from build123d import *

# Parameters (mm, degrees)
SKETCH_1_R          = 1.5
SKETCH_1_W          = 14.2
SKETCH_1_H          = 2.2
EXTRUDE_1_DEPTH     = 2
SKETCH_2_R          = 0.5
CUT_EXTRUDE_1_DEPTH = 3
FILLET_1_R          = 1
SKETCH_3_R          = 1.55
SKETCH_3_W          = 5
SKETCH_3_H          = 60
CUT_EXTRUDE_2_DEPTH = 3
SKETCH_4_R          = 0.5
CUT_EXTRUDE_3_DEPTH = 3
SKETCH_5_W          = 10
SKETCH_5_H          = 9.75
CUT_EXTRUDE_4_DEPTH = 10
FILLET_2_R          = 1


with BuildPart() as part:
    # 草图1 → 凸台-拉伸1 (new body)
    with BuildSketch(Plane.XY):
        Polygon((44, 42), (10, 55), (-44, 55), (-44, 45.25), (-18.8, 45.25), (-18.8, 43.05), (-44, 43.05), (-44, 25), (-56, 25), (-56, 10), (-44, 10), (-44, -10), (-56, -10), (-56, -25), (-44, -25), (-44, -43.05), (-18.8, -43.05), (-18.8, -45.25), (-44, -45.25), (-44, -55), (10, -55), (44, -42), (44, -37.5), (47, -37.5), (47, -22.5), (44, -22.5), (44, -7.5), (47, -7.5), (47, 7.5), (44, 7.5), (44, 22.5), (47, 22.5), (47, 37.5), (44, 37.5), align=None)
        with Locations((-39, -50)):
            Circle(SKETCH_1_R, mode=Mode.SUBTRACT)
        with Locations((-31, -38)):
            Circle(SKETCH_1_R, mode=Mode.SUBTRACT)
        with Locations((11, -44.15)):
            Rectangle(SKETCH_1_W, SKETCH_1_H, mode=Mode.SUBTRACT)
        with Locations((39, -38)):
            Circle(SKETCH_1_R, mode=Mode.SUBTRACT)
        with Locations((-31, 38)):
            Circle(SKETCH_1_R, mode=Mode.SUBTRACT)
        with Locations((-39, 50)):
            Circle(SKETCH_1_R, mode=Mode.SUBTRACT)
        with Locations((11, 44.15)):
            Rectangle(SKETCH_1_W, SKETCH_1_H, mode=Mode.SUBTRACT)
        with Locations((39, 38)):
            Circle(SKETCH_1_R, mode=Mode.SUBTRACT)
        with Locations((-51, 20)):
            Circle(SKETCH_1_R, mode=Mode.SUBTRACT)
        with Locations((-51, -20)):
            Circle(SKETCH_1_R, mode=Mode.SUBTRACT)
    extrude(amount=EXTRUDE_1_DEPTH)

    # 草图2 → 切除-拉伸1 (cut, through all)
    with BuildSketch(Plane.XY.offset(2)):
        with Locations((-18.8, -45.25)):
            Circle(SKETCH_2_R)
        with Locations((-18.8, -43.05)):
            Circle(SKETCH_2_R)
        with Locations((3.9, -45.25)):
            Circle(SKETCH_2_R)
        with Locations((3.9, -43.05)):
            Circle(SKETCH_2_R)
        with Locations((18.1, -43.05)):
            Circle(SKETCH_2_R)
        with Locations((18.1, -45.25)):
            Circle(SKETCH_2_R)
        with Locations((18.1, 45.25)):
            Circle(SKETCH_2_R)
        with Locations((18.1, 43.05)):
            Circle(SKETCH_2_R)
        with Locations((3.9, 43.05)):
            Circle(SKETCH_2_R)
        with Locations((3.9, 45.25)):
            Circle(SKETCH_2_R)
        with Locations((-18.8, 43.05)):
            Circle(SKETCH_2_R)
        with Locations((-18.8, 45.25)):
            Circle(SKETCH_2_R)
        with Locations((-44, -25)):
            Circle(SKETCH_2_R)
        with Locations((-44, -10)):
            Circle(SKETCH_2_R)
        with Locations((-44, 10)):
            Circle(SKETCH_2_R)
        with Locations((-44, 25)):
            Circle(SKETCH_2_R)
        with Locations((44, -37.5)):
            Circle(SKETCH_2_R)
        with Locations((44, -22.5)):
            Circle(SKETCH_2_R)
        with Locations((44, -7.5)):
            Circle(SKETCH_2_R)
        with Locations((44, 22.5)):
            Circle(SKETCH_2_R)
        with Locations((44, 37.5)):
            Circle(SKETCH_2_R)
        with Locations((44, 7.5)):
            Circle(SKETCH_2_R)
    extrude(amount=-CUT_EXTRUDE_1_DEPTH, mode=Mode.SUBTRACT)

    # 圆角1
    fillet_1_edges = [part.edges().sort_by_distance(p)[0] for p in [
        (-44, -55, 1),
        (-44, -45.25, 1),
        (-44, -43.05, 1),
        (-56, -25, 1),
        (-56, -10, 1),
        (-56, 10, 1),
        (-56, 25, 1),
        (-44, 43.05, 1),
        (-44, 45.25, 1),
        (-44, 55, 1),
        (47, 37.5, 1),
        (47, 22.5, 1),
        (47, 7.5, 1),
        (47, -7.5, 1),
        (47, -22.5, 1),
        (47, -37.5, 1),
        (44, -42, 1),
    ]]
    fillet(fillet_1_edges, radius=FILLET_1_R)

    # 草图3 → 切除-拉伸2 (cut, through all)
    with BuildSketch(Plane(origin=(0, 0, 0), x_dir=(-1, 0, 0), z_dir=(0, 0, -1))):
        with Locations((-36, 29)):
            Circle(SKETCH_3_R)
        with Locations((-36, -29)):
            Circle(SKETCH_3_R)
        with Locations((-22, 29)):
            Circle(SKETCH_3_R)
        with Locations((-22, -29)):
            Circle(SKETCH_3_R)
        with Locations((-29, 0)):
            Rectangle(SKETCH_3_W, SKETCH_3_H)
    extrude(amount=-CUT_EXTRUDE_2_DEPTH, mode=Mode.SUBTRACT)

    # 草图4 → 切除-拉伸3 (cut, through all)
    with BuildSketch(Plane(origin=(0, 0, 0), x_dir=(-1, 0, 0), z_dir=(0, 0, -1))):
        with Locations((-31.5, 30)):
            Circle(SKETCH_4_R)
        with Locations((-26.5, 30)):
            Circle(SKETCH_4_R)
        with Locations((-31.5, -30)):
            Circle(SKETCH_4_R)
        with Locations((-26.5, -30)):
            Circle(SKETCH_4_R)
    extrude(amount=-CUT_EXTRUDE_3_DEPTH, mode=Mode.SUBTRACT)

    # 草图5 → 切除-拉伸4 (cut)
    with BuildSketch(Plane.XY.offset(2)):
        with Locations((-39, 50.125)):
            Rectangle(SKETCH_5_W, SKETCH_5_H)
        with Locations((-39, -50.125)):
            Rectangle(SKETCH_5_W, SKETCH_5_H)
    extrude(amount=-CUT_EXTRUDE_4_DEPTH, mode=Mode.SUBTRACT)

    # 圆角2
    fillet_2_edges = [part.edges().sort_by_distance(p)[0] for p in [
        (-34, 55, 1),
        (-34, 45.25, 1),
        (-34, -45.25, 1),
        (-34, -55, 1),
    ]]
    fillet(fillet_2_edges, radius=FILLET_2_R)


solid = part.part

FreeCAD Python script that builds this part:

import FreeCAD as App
import Part
import Sketcher
from FreeCAD import Vector
Q = App.Units.Quantity


def edges_at(feature, points):
    """Names of the edges that pass closest to the given points."""
    edges = feature.Shape.Edges
    near = lambda p: min(range(len(edges)), key=lambda i: edges[i].distToShape(Part.Vertex(*p))[0])
    return sorted({f"Edge{near(p) + 1}" for p in points})

doc = App.newDocument("Part")
body = doc.addObject("PartDesign::Body", "Body")

sketch1 = body.newObject("Sketcher::SketchObject", "Sketch")
sketch1.AttachmentSupport = (doc.getObject("XY_Plane"), [""])
sketch1.MapMode = "FlatFace"
sketch1.addGeometry(Part.LineSegment(Vector(44, 42, 0), Vector(10, 55, 0)), False)
sketch1.addGeometry(Part.LineSegment(Vector(10, 55, 0), Vector(-44, 55, 0)), False)
sketch1.addGeometry(Part.LineSegment(Vector(-44, 55, 0), Vector(-44, 45.2, 0)), False)
sketch1.addGeometry(Part.LineSegment(Vector(-44, 45.2, 0), Vector(-18.8, 45.2, 0)), False)
sketch1.addGeometry(Part.LineSegment(Vector(-18.8, 45.2, 0), Vector(-18.8, 43, 0)), False)
sketch1.addGeometry(Part.LineSegment(Vector(-18.8, 43, 0), Vector(-44, 43, 0)), False)
sketch1.addGeometry(Part.LineSegment(Vector(-44, 43, 0), Vector(-44, 25, 0)), False)
sketch1.addGeometry(Part.LineSegment(Vector(-44, 25, 0), Vector(-56, 25, 0)), False)
sketch1.addGeometry(Part.LineSegment(Vector(-56, 25, 0), Vector(-56, 10, 0)), False)
sketch1.addGeometry(Part.LineSegment(Vector(-56, 10, 0), Vector(-44, 10, 0)), False)
sketch1.addGeometry(Part.LineSegment(Vector(-44, 10, 0), Vector(-44, -10, 0)), False)
sketch1.addGeometry(Part.LineSegment(Vector(-44, -10, 0), Vector(-56, -10, 0)), False)
sketch1.addGeometry(Part.LineSegment(Vector(-56, -10, 0), Vector(-56, -25, 0)), False)
sketch1.addGeometry(Part.LineSegment(Vector(-56, -25, 0), Vector(-44, -25, 0)), False)
sketch1.addGeometry(Part.LineSegment(Vector(-44, -25, 0), Vector(-44, -43, 0)), False)
sketch1.addGeometry(Part.LineSegment(Vector(-44, -43, 0), Vector(-18.8, -43, 0)), False)
sketch1.addGeometry(Part.LineSegment(Vector(-18.8, -43, 0), Vector(-18.8, -45.2, 0)), False)
sketch1.addGeometry(Part.LineSegment(Vector(-18.8, -45.2, 0), Vector(-44, -45.2, 0)), False)
sketch1.addGeometry(Part.LineSegment(Vector(-44, -45.2, 0), Vector(-44, -55, 0)), False)
sketch1.addGeometry(Part.LineSegment(Vector(-44, -55, 0), Vector(10, -55, 0)), False)
sketch1.addGeometry(Part.LineSegment(Vector(10, -55, 0), Vector(44, -42, 0)), False)
sketch1.addGeometry(Part.LineSegment(Vector(44, -42, 0), Vector(44, -37.5, 0)), False)
sketch1.addGeometry(Part.LineSegment(Vector(44, -37.5, 0), Vector(47, -37.5, 0)), False)
sketch1.addGeometry(Part.LineSegment(Vector(47, -37.5, 0), Vector(47, -22.5, 0)), False)
sketch1.addGeometry(Part.LineSegment(Vector(47, -22.5, 0), Vector(44, -22.5, 0)), False)
sketch1.addGeometry(Part.LineSegment(Vector(44, -22.5, 0), Vector(44, -7.5, 0)), False)
sketch1.addGeometry(Part.LineSegment(Vector(44, -7.5, 0), Vector(47, -7.5, 0)), False)
sketch1.addGeometry(Part.LineSegment(Vector(47, -7.5, 0), Vector(47, 7.5, 0)), False)
sketch1.addGeometry(Part.LineSegment(Vector(47, 7.5, 0), Vector(44, 7.5, 0)), False)
sketch1.addGeometry(Part.LineSegment(Vector(44, 7.5, 0), Vector(44, 22.5, 0)), False)
sketch1.addGeometry(Part.LineSegment(Vector(44, 22.5, 0), Vector(47, 22.5, 0)), False)
sketch1.addGeometry(Part.LineSegment(Vector(47, 22.5, 0), Vector(47, 37.5, 0)), False)
sketch1.addGeometry(Part.LineSegment(Vector(47, 37.5, 0), Vector(44, 37.5, 0)), False)
sketch1.addGeometry(Part.LineSegment(Vector(44, 37.5, 0), Vector(44, 42, 0)), False)
sketch1.addGeometry(Part.Circle(Vector(-39, -50, 0), Vector(0, 0, 1), 1.5), False)
sketch1.addGeometry(Part.Circle(Vector(-31, -38, 0), Vector(0, 0, 1), 1.5), False)
sketch1.addGeometry(Part.Circle(Vector(-51, -20, 0), Vector(0, 0, 1), 1.5), False)
sketch1.addGeometry(Part.LineSegment(Vector(18.1, -45.2, 0), Vector(3.9, -45.2, 0)), False)
sketch1.addGeometry(Part.LineSegment(Vector(3.9, -45.2, 0), Vector(3.9, -43, 0)), False)
sketch1.addGeometry(Part.LineSegment(Vector(3.9, -43, 0), Vector(18.1, -43, 0)), False)
sketch1.addGeometry(Part.LineSegment(Vector(18.1, -43, 0), Vector(18.1, -45.2, 0)), False)
sketch1.addGeometry(Part.Circle(Vector(39, -38, 0), Vector(0, 0, 1), 1.5), False)
sketch1.addGeometry(Part.Circle(Vector(-51, 20, 0), Vector(0, 0, 1), 1.5), False)
sketch1.addGeometry(Part.Circle(Vector(-31, 38, 0), Vector(0, 0, 1), 1.5), False)
sketch1.addGeometry(Part.Circle(Vector(-39, 50, 0), Vector(0, 0, 1), 1.5), False)
sketch1.addGeometry(Part.LineSegment(Vector(18.1, 43, 0), Vector(3.9, 43, 0)), False)
sketch1.addGeometry(Part.LineSegment(Vector(3.9, 43, 0), Vector(3.9, 45.2, 0)), False)
sketch1.addGeometry(Part.LineSegment(Vector(3.9, 45.2, 0), Vector(18.1, 45.2, 0)), False)
sketch1.addGeometry(Part.LineSegment(Vector(18.1, 45.2, 0), Vector(18.1, 43, 0)), False)
sketch1.addGeometry(Part.Circle(Vector(39, 38, 0), Vector(0, 0, 1), 1.5), False)
sketch1.addConstraint(Sketcher.Constraint("Coincident", 0, 2, 1, 1))
sketch1.addConstraint(Sketcher.Constraint("Coincident", 1, 2, 2, 1))
sketch1.addConstraint(Sketcher.Constraint("Coincident", 2, 2, 3, 1))
sketch1.addConstraint(Sketcher.Constraint("Coincident", 3, 2, 4, 1))
sketch1.addConstraint(Sketcher.Constraint("Coincident", 4, 2, 5, 1))
sketch1.addConstraint(Sketcher.Constraint("Coincident", 5, 2, 6, 1))
sketch1.addConstraint(Sketcher.Constraint("Coincident", 6, 2, 7, 1))
sketch1.addConstraint(Sketcher.Constraint("Coincident", 7, 2, 8, 1))
sketch1.addConstraint(Sketcher.Constraint("Coincident", 8, 2, 9, 1))
sketch1.addConstraint(Sketcher.Constraint("Coincident", 9, 2, 10, 1))
sketch1.addConstraint(Sketcher.Constraint("Coincident", 10, 2, 11, 1))
sketch1.addConstraint(Sketcher.Constraint("Coincident", 11, 2, 12, 1))
sketch1.addConstraint(Sketcher.Constraint("Coincident", 12, 2, 13, 1))
sketch1.addConstraint(Sketcher.Constraint("Coincident", 13, 2, 14, 1))
sketch1.addConstraint(Sketcher.Constraint("Coincident", 14, 2, 15, 1))
sketch1.addConstraint(Sketcher.Constraint("Coincident", 15, 2, 16, 1))
sketch1.addConstraint(Sketcher.Constraint("Coincident", 16, 2, 17, 1))
sketch1.addConstraint(Sketcher.Constraint("Coincident", 17, 2, 18, 1))
sketch1.addConstraint(Sketcher.Constraint("Coincident", 18, 2, 19, 1))
sketch1.addConstraint(Sketcher.Constraint("Coincident", 19, 2, 20, 1))
sketch1.addConstraint(Sketcher.Constraint("Coincident", 20, 2, 21, 1))
sketch1.addConstraint(Sketcher.Constraint("Coincident", 21, 2, 22, 1))
sketch1.addConstraint(Sketcher.Constraint("Coincident", 22, 2, 23, 1))
sketch1.addConstraint(Sketcher.Constraint("Coincident", 23, 2, 24, 1))
sketch1.addConstraint(Sketcher.Constraint("Coincident", 24, 2, 25, 1))
sketch1.addConstraint(Sketcher.Constraint("Coincident", 25, 2, 26, 1))
sketch1.addConstraint(Sketcher.Constraint("Coincident", 26, 2, 27, 1))
sketch1.addConstraint(Sketcher.Constraint("Coincident", 27, 2, 28, 1))
sketch1.addConstraint(Sketcher.Constraint("Coincident", 28, 2, 29, 1))
sketch1.addConstraint(Sketcher.Constraint("Coincident", 29, 2, 30, 1))
sketch1.addConstraint(Sketcher.Constraint("Coincident", 30, 2, 31, 1))
sketch1.addConstraint(Sketcher.Constraint("Coincident", 31, 2, 32, 1))
sketch1.addConstraint(Sketcher.Constraint("Coincident", 32, 2, 33, 1))
sketch1.addConstraint(Sketcher.Constraint("Coincident", 33, 2, 0, 1))
sketch1.addConstraint(Sketcher.Constraint("Coincident", 37, 2, 38, 1))
sketch1.addConstraint(Sketcher.Constraint("Coincident", 38, 2, 39, 1))
sketch1.addConstraint(Sketcher.Constraint("Coincident", 39, 2, 40, 1))
sketch1.addConstraint(Sketcher.Constraint("Coincident", 40, 2, 37, 1))
sketch1.addConstraint(Sketcher.Constraint("Coincident", 45, 2, 46, 1))
sketch1.addConstraint(Sketcher.Constraint("Coincident", 46, 2, 47, 1))
sketch1.addConstraint(Sketcher.Constraint("Coincident", 47, 2, 48, 1))
sketch1.addConstraint(Sketcher.Constraint("Coincident", 48, 2, 45, 1))
sketch1.addConstraint(Sketcher.Constraint("Horizontal", 1))
sketch1.addConstraint(Sketcher.Constraint("Vertical", 2))
sketch1.addConstraint(Sketcher.Constraint("Horizontal", 3))
sketch1.addConstraint(Sketcher.Constraint("Vertical", 4))
sketch1.addConstraint(Sketcher.Constraint("Horizontal", 5))
sketch1.addConstraint(Sketcher.Constraint("Vertical", 6))
sketch1.addConstraint(Sketcher.Constraint("Horizontal", 7))
sketch1.addConstraint(Sketcher.Constraint("Vertical", 8))
sketch1.addConstraint(Sketcher.Constraint("Horizontal", 9))
sketch1.addConstraint(Sketcher.Constraint("Vertical", 10))
sketch1.addConstraint(Sketcher.Constraint("Horizontal", 11))
sketch1.addConstraint(Sketcher.Constraint("Vertical", 12))
sketch1.addConstraint(Sketcher.Constraint("Horizontal", 13))
sketch1.addConstraint(Sketcher.Constraint("Vertical", 14))
sketch1.addConstraint(Sketcher.Constraint("Horizontal", 15))
sketch1.addConstraint(Sketcher.Constraint("Vertical", 16))
sketch1.addConstraint(Sketcher.Constraint("Horizontal", 17))
sketch1.addConstraint(Sketcher.Constraint("Vertical", 18))
sketch1.addConstraint(Sketcher.Constraint("Horizontal", 19))
sketch1.addConstraint(Sketcher.Constraint("Vertical", 21))
sketch1.addConstraint(Sketcher.Constraint("Horizontal", 22))
sketch1.addConstraint(Sketcher.Constraint("Vertical", 23))
sketch1.addConstraint(Sketcher.Constraint("Horizontal", 24))
sketch1.addConstraint(Sketcher.Constraint("Vertical", 25))
sketch1.addConstraint(Sketcher.Constraint("Horizontal", 26))
sketch1.addConstraint(Sketcher.Constraint("Vertical", 27))
sketch1.addConstraint(Sketcher.Constraint("Horizontal", 28))
sketch1.addConstraint(Sketcher.Constraint("Vertical", 29))
sketch1.addConstraint(Sketcher.Constraint("Horizontal", 30))
sketch1.addConstraint(Sketcher.Constraint("Vertical", 31))
sketch1.addConstraint(Sketcher.Constraint("Horizontal", 32))
sketch1.addConstraint(Sketcher.Constraint("Vertical", 33))
sketch1.addConstraint(Sketcher.Constraint("Horizontal", 37))
sketch1.addConstraint(Sketcher.Constraint("Vertical", 38))
sketch1.addConstraint(Sketcher.Constraint("Horizontal", 39))
sketch1.addConstraint(Sketcher.Constraint("Vertical", 40))
sketch1.addConstraint(Sketcher.Constraint("Horizontal", 45))
sketch1.addConstraint(Sketcher.Constraint("Vertical", 46))
sketch1.addConstraint(Sketcher.Constraint("Horizontal", 47))
sketch1.addConstraint(Sketcher.Constraint("Vertical", 48))
sketch1.addConstraint(Sketcher.Constraint("Equal", 34, 35))
sketch1.addConstraint(Sketcher.Constraint("Equal", 35, 36))
sketch1.addConstraint(Sketcher.Constraint("Equal", 36, 41))
sketch1.addConstraint(Sketcher.Constraint("Equal", 41, 42))
sketch1.addConstraint(Sketcher.Constraint("Equal", 42, 43))
sketch1.addConstraint(Sketcher.Constraint("Equal", 43, 44))
sketch1.addConstraint(Sketcher.Constraint("Equal", 44, 49))
sketch1.addConstraint(Sketcher.Constraint("Symmetric", 36, 3, 42, 3, -1))
sketch1.addConstraint(Sketcher.Constraint("Symmetric", 35, 3, 43, 3, -1))
sketch1.addConstraint(Sketcher.Constraint("Symmetric", 34, 3, 44, 3, -1))
sketch1.addConstraint(Sketcher.Constraint("Symmetric", 41, 3, 49, 3, -1))
sketch1.addConstraint(Sketcher.Constraint("Symmetric", 8, 2, 11, 2, -1))
sketch1.addConstraint(Sketcher.Constraint("Symmetric", 6, 2, 13, 2, -1))
sketch1.addConstraint(Sketcher.Constraint("Symmetric", 4, 2, 15, 2, -1))
sketch1.addConstraint(Sketcher.Constraint("Symmetric", 2, 2, 17, 2, -1))
sketch1.addConstraint(Sketcher.Constraint("Symmetric", 0, 2, 19, 2, -1))
sketch1.addConstraint(Sketcher.Constraint("Symmetric", 25, 2, 28, 2, -1))
sketch1.addConstraint(Sketcher.Constraint("Symmetric", 23, 2, 30, 2, -1))
sketch1.addConstraint(Sketcher.Constraint("Symmetric", 21, 2, 32, 2, -1))
sketch1.addConstraint(Sketcher.Constraint("Symmetric", 38, 2, 45, 2, -1))
sketch1.addConstraint(Sketcher.Constraint("Symmetric", 40, 2, 47, 2, -1))
sketch1.addConstraint(Sketcher.Constraint("Horizontal", 35, 3, 41, 3))
sketch1.addConstraint(Sketcher.Constraint("Horizontal", 17, 2, 37, 2))
sketch1.addConstraint(Sketcher.Constraint("Horizontal", 15, 2, 38, 2))
sketch1.addConstraint(Sketcher.Constraint("Vertical", 2, 2, 5, 2))
sketch1.addConstraint(Sketcher.Constraint("Vertical", 6, 2, 9, 2))
sketch1.addConstraint(Sketcher.Constraint("Vertical", 21, 2, 24, 2))
sketch1.addConstraint(Sketcher.Constraint("Vertical", 23, 2, 26, 2))
sketch1.addConstraint(Sketcher.Constraint("Equal", 12, 23))
sketch1.addConstraint(Sketcher.Constraint("Equal", 23, 25))
sketch1.addConstraint(Sketcher.Constraint("Equal", 25, 27))
sketch1.addConstraint(Sketcher.Constraint("Equal", 21, 33))
sketch1.addConstraint(Sketcher.Constraint("Diameter", 34, Q("3 mm")))
sketch1.addConstraint(Sketcher.Constraint("DistanceX", 1, 2, 1, 1, Q("54 mm")))
sketch1.addConstraint(Sketcher.Constraint("DistanceX", 7, 2, 7, 1, Q("12 mm")))
sketch1.addConstraint(Sketcher.Constraint("DistanceX", 22, 1, 22, 2, Q("3 mm")))
sketch1.addConstraint(Sketcher.Constraint("DistanceY", 8, 2, 8, 1, Q("15 mm")))
sketch1.addConstraint(Sketcher.Constraint("DistanceY", 10, 2, 10, 1, Q("20 mm")))
sketch1.addConstraint(Sketcher.Constraint("DistanceX", 3, 1, 3, 2, Q("25.2 mm")))
sketch1.addConstraint(Sketcher.Constraint("DistanceX", 37, 2, 37, 1, Q("14.2 mm")))
sketch1.addConstraint(Sketcher.Constraint("DistanceY", 4, 2, 4, 1, Q("2.2 mm")))
sketch1.addConstraint(Sketcher.Constraint("DistanceY", 21, 1, 21, 2, Q("4.5 mm")))
sketch1.addConstraint(Sketcher.Constraint("DistanceX", 34, 3, -1, 1, Q("39 mm")))
sketch1.addConstraint(Sketcher.Constraint("DistanceY", 34, 3, -1, 1, Q("50 mm")))
sketch1.addConstraint(Sketcher.Constraint("DistanceX", 35, 3, -1, 1, Q("31 mm")))
sketch1.addConstraint(Sketcher.Constraint("DistanceY", 35, 3, -1, 1, Q("38 mm")))
sketch1.addConstraint(Sketcher.Constraint("DistanceX", 36, 3, -1, 1, Q("51 mm")))
sketch1.addConstraint(Sketcher.Constraint("DistanceY", 36, 3, -1, 1, Q("20 mm")))
sketch1.addConstraint(Sketcher.Constraint("DistanceX", -1, 1, 41, 3, Q("39 mm")))
sketch1.addConstraint(Sketcher.Constraint("DistanceX", -1, 1, 0, 2, Q("10 mm")))
sketch1.addConstraint(Sketcher.Constraint("DistanceY", -1, 1, 0, 2, Q("55 mm")))
sketch1.addConstraint(Sketcher.Constraint("DistanceX", -1, 1, 20, 2, Q("44 mm")))
sketch1.addConstraint(Sketcher.Constraint("DistanceY", 2, 2, 2, 1, Q("9.75 mm")))
sketch1.addConstraint(Sketcher.Constraint("DistanceX", -1, 1, 37, 2, Q("3.9 mm")))
pad1 = body.newObject("PartDesign::Pad", "Pad")
pad1.Profile = sketch1
pad1.Length = 2

sketch2 = body.newObject("Sketcher::SketchObject", "Sketch001")
sketch2.AttachmentSupport = (doc.getObject("XY_Plane"), [""])
sketch2.MapMode = "FlatFace"
sketch2.AttachmentOffset = App.Placement(Vector(0, 0, 2), App.Rotation())
sketch2.addGeometry(Part.Circle(Vector(-18.8, -45.2, 0), Vector(0, 0, 1), 0.5), False)
sketch2.addGeometry(Part.Circle(Vector(-18.8, -43, 0), Vector(0, 0, 1), 0.5), False)
sketch2.addGeometry(Part.Circle(Vector(3.9, -45.2, 0), Vector(0, 0, 1), 0.5), False)
sketch2.addGeometry(Part.Circle(Vector(3.9, -43, 0), Vector(0, 0, 1), 0.5), False)
sketch2.addGeometry(Part.Circle(Vector(18.1, -43, 0), Vector(0, 0, 1), 0.5), False)
sketch2.addGeometry(Part.Circle(Vector(18.1, -45.2, 0), Vector(0, 0, 1), 0.5), False)
sketch2.addGeometry(Part.Circle(Vector(18.1, 45.2, 0), Vector(0, 0, 1), 0.5), False)
sketch2.addGeometry(Part.Circle(Vector(18.1, 43, 0), Vector(0, 0, 1), 0.5), False)
sketch2.addGeometry(Part.Circle(Vector(3.9, 43, 0), Vector(0, 0, 1), 0.5), False)
sketch2.addGeometry(Part.Circle(Vector(3.9, 45.2, 0), Vector(0, 0, 1), 0.5), False)
sketch2.addGeometry(Part.Circle(Vector(-18.8, 43, 0), Vector(0, 0, 1), 0.5), False)
sketch2.addGeometry(Part.Circle(Vector(-18.8, 45.2, 0), Vector(0, 0, 1), 0.5), False)
sketch2.addGeometry(Part.Circle(Vector(-44, -25, 0), Vector(0, 0, 1), 0.5), False)
sketch2.addGeometry(Part.Circle(Vector(-44, -10, 0), Vector(0, 0, 1), 0.5), False)
sketch2.addGeometry(Part.Circle(Vector(-44, 10, 0), Vector(0, 0, 1), 0.5), False)
sketch2.addGeometry(Part.Circle(Vector(-44, 25, 0), Vector(0, 0, 1), 0.5), False)
sketch2.addGeometry(Part.Circle(Vector(44, -37.5, 0), Vector(0, 0, 1), 0.5), False)
sketch2.addGeometry(Part.Circle(Vector(44, -22.5, 0), Vector(0, 0, 1), 0.5), False)
sketch2.addGeometry(Part.Circle(Vector(44, -7.5, 0), Vector(0, 0, 1), 0.5), False)
sketch2.addGeometry(Part.Circle(Vector(44, 22.5, 0), Vector(0, 0, 1), 0.5), False)
sketch2.addGeometry(Part.Circle(Vector(44, 37.5, 0), Vector(0, 0, 1), 0.5), False)
sketch2.addGeometry(Part.Circle(Vector(44, 7.5, 0), Vector(0, 0, 1), 0.5), False)
sketch2.addConstraint(Sketcher.Constraint("Equal", 0, 1))
sketch2.addConstraint(Sketcher.Constraint("Equal", 1, 2))
sketch2.addConstraint(Sketcher.Constraint("Equal", 2, 3))
sketch2.addConstraint(Sketcher.Constraint("Equal", 3, 4))
sketch2.addConstraint(Sketcher.Constraint("Equal", 4, 5))
sketch2.addConstraint(Sketcher.Constraint("Equal", 5, 6))
sketch2.addConstraint(Sketcher.Constraint("Equal", 6, 7))
sketch2.addConstraint(Sketcher.Constraint("Equal", 7, 8))
sketch2.addConstraint(Sketcher.Constraint("Equal", 8, 9))
sketch2.addConstraint(Sketcher.Constraint("Equal", 9, 10))
sketch2.addConstraint(Sketcher.Constraint("Equal", 10, 11))
sketch2.addConstraint(Sketcher.Constraint("Equal", 11, 12))
sketch2.addConstraint(Sketcher.Constraint("Equal", 12, 13))
sketch2.addConstraint(Sketcher.Constraint("Equal", 13, 14))
sketch2.addConstraint(Sketcher.Constraint("Equal", 14, 15))
sketch2.addConstraint(Sketcher.Constraint("Equal", 15, 16))
sketch2.addConstraint(Sketcher.Constraint("Equal", 16, 17))
sketch2.addConstraint(Sketcher.Constraint("Equal", 17, 18))
sketch2.addConstraint(Sketcher.Constraint("Equal", 18, 19))
sketch2.addConstraint(Sketcher.Constraint("Equal", 19, 20))
sketch2.addConstraint(Sketcher.Constraint("Equal", 20, 21))
sketch2.addConstraint(Sketcher.Constraint("Symmetric", 5, 3, 6, 3, -1))
sketch2.addConstraint(Sketcher.Constraint("Symmetric", 4, 3, 7, 3, -1))
sketch2.addConstraint(Sketcher.Constraint("Symmetric", 3, 3, 8, 3, -1))
sketch2.addConstraint(Sketcher.Constraint("Symmetric", 2, 3, 9, 3, -1))
sketch2.addConstraint(Sketcher.Constraint("Symmetric", 1, 3, 10, 3, -1))
sketch2.addConstraint(Sketcher.Constraint("Symmetric", 0, 3, 11, 3, -1))
sketch2.addConstraint(Sketcher.Constraint("Symmetric", 13, 3, 14, 3, -1))
sketch2.addConstraint(Sketcher.Constraint("Symmetric", 12, 3, 15, 3, -1))
sketch2.addConstraint(Sketcher.Constraint("Symmetric", 17, 3, 19, 3, -1))
sketch2.addConstraint(Sketcher.Constraint("Symmetric", 16, 3, 20, 3, -1))
sketch2.addConstraint(Sketcher.Constraint("Symmetric", 18, 3, 21, 3, -1))
sketch2.addConstraint(Sketcher.Constraint("Horizontal", 0, 3, 2, 3))
sketch2.addConstraint(Sketcher.Constraint("Horizontal", 1, 3, 3, 3))
sketch2.addConstraint(Sketcher.Constraint("Horizontal", 3, 3, 4, 3))
sketch2.addConstraint(Sketcher.Constraint("Horizontal", 2, 3, 5, 3))
sketch2.addConstraint(Sketcher.Constraint("Vertical", 0, 3, 1, 3))
sketch2.addConstraint(Sketcher.Constraint("Vertical", 2, 3, 3, 3))
sketch2.addConstraint(Sketcher.Constraint("Vertical", 4, 3, 5, 3))
sketch2.addConstraint(Sketcher.Constraint("Vertical", 12, 3, 13, 3))
sketch2.addConstraint(Sketcher.Constraint("Vertical", 16, 3, 17, 3))
sketch2.addConstraint(Sketcher.Constraint("Vertical", 17, 3, 18, 3))
sketch2.addConstraint(Sketcher.Constraint("Diameter", 0, Q("1 mm")))
sketch2.addConstraint(Sketcher.Constraint("DistanceX", 12, 3, -1, 1, Q("44 mm")))
sketch2.addConstraint(Sketcher.Constraint("DistanceY", 12, 3, -1, 1, Q("25 mm")))
sketch2.addConstraint(Sketcher.Constraint("DistanceY", 13, 3, -1, 1, Q("10 mm")))
sketch2.addConstraint(Sketcher.Constraint("DistanceX", -1, 1, 16, 3, Q("44 mm")))
sketch2.addConstraint(Sketcher.Constraint("DistanceY", 16, 3, 17, 3, Q("15 mm")))
sketch2.addConstraint(Sketcher.Constraint("DistanceY", 17, 3, 18, 3, Q("15 mm")))
sketch2.addConstraint(Sketcher.Constraint("DistanceY", 18, 3, 19, 3, Q("30 mm")))
sketch2.addConstraint(Sketcher.Constraint("DistanceX", 0, 3, -1, 1, Q("18.8 mm")))
sketch2.addConstraint(Sketcher.Constraint("DistanceX", -1, 1, 2, 3, Q("3.9 mm")))
sketch2.addConstraint(Sketcher.Constraint("DistanceX", -1, 1, 4, 3, Q("18.1 mm")))
sketch2.addConstraint(Sketcher.Constraint("DistanceY", 0, 3, 1, 3, Q("2.2 mm")))
sketch2.addConstraint(Sketcher.Constraint("DistanceY", 4, 3, 6, 3, Q("88.3 mm")))
pocket1 = body.newObject("PartDesign::Pocket", "Pocket")
pocket1.Profile = sketch2
pocket1.Type = "ThroughAll"
doc.recompute()

fillet = body.newObject("PartDesign::Fillet", "Fillet")
fillet.Base = (pocket1, edges_at(pocket1, [
    (-44, -55, 1),
    (-44, -45.25, 1),
    (-44, -43.05, 1),
    (-56, -25, 1),
    (-56, -10, 1),
    (-56, 10, 1),
    (-56, 25, 1),
    (-44, 43.05, 1),
    (-44, 45.25, 1),
    (-44, 55, 1),
    (47, 37.5, 1),
    (47, 22.5, 1),
    (47, 7.5, 1),
    (47, -7.5, 1),
    (47, -22.5, 1),
    (47, -37.5, 1),
    (44, -42, 1),
]))
fillet.Radius = 1

sketch3 = body.newObject("Sketcher::SketchObject", "Sketch002")
sketch3.AttachmentSupport = (doc.getObject("XY_Plane"), [""])
sketch3.MapMode = "FlatFace"
sketch3.addGeometry(Part.Circle(Vector(36, 29, 0), Vector(0, 0, 1), 1.6), False)
sketch3.addGeometry(Part.Circle(Vector(36, -29, 0), Vector(0, 0, 1), 1.6), False)
sketch3.addGeometry(Part.Circle(Vector(22, 29, 0), Vector(0, 0, 1), 1.6), False)
sketch3.addGeometry(Part.Circle(Vector(22, -29, 0), Vector(0, 0, 1), 1.6), False)
sketch3.addGeometry(Part.LineSegment(Vector(31.5, 30, 0), Vector(31.5, -30, 0)), False)
sketch3.addGeometry(Part.LineSegment(Vector(31.5, -30, 0), Vector(26.5, -30, 0)), False)
sketch3.addGeometry(Part.LineSegment(Vector(26.5, -30, 0), Vector(26.5, 30, 0)), False)
sketch3.addGeometry(Part.LineSegment(Vector(26.5, 30, 0), Vector(31.5, 30, 0)), False)
sketch3.addConstraint(Sketcher.Constraint("Coincident", 4, 2, 5, 1))
sketch3.addConstraint(Sketcher.Constraint("Coincident", 5, 2, 6, 1))
sketch3.addConstraint(Sketcher.Constraint("Coincident", 6, 2, 7, 1))
sketch3.addConstraint(Sketcher.Constraint("Coincident", 7, 2, 4, 1))
sketch3.addConstraint(Sketcher.Constraint("Vertical", 4))
sketch3.addConstraint(Sketcher.Constraint("Horizontal", 5))
sketch3.addConstraint(Sketcher.Constraint("Vertical", 6))
sketch3.addConstraint(Sketcher.Constraint("Horizontal", 7))
sketch3.addConstraint(Sketcher.Constraint("Equal", 0, 1))
sketch3.addConstraint(Sketcher.Constraint("Equal", 1, 2))
sketch3.addConstraint(Sketcher.Constraint("Equal", 2, 3))
sketch3.addConstraint(Sketcher.Constraint("Symmetric", 0, 3, 1, 3, -1))
sketch3.addConstraint(Sketcher.Constraint("Symmetric", 2, 3, 3, 3, -1))
sketch3.addConstraint(Sketcher.Constraint("Horizontal", 0, 3, 2, 3))
sketch3.addConstraint(Sketcher.Constraint("Diameter", 0, Q("3.1 mm")))
sketch3.addConstraint(Sketcher.Constraint("DistanceX", 5, 2, 5, 1, Q("5 mm")))
sketch3.addConstraint(Sketcher.Constraint("DistanceY", 4, 2, 4, 1, Q("60 mm")))
sketch3.addConstraint(Sketcher.Constraint("DistanceX", -1, 1, 0, 3, Q("36 mm")))
sketch3.addConstraint(Sketcher.Constraint("DistanceY", -1, 1, 0, 3, Q("29 mm")))
sketch3.addConstraint(Sketcher.Constraint("DistanceX", -1, 1, 2, 3, Q("22 mm")))
sketch3.addConstraint(Sketcher.Constraint("DistanceY", 4, 2, -1, 1, Q("30 mm")))
sketch3.addConstraint(Sketcher.Constraint("DistanceX", -1, 1, 4, 2, Q("31.5 mm")))
pocket2 = body.newObject("PartDesign::Pocket", "Pocket001")
pocket2.Profile = sketch3
pocket2.Type = "ThroughAll"
pocket2.Reversed = True

sketch4 = body.newObject("Sketcher::SketchObject", "Sketch003")
sketch4.AttachmentSupport = (doc.getObject("XY_Plane"), [""])
sketch4.MapMode = "FlatFace"
sketch4.addGeometry(Part.Circle(Vector(31.5, 30, 0), Vector(0, 0, 1), 0.5), False)
sketch4.addGeometry(Part.Circle(Vector(26.5, 30, 0), Vector(0, 0, 1), 0.5), False)
sketch4.addGeometry(Part.Circle(Vector(31.5, -30, 0), Vector(0, 0, 1), 0.5), False)
sketch4.addGeometry(Part.Circle(Vector(26.5, -30, 0), Vector(0, 0, 1), 0.5), False)
sketch4.addConstraint(Sketcher.Constraint("Equal", 0, 1))
sketch4.addConstraint(Sketcher.Constraint("Equal", 1, 2))
sketch4.addConstraint(Sketcher.Constraint("Equal", 2, 3))
sketch4.addConstraint(Sketcher.Constraint("Symmetric", 0, 3, 2, 3, -1))
sketch4.addConstraint(Sketcher.Constraint("Symmetric", 1, 3, 3, 3, -1))
sketch4.addConstraint(Sketcher.Constraint("Horizontal", 0, 3, 1, 3))
sketch4.addConstraint(Sketcher.Constraint("Diameter", 0, Q("1 mm")))
sketch4.addConstraint(Sketcher.Constraint("DistanceY", -1, 1, 0, 3, Q("30 mm")))
sketch4.addConstraint(Sketcher.Constraint("DistanceX", 1, 3, 0, 3, Q("5 mm")))
sketch4.addConstraint(Sketcher.Constraint("DistanceX", -1, 1, 0, 3, Q("31.5 mm")))
pocket3 = body.newObject("PartDesign::Pocket", "Pocket002")
pocket3.Profile = sketch4
pocket3.Type = "ThroughAll"
pocket3.Reversed = True

sketch5 = body.newObject("Sketcher::SketchObject", "Sketch004")
sketch5.AttachmentSupport = (doc.getObject("XY_Plane"), [""])
sketch5.MapMode = "FlatFace"
sketch5.AttachmentOffset = App.Placement(Vector(0, 0, 2), App.Rotation())
sketch5.addGeometry(Part.LineSegment(Vector(-44, 55, 0), Vector(-44, 45, 0)), False)
sketch5.addGeometry(Part.LineSegment(Vector(-44, 45, 0), Vector(-34, 45, 0)), False)
sketch5.addGeometry(Part.LineSegment(Vector(-34, 45, 0), Vector(-34, 55, 0)), False)
sketch5.addGeometry(Part.LineSegment(Vector(-34, 55, 0), Vector(-44, 55, 0)), False)
sketch5.addGeometry(Part.LineSegment(Vector(-44, -45, 0), Vector(-44, -55, 0)), False)
sketch5.addGeometry(Part.LineSegment(Vector(-44, -55, 0), Vector(-34, -55, 0)), False)
sketch5.addGeometry(Part.LineSegment(Vector(-34, -55, 0), Vector(-34, -45, 0)), False)
sketch5.addGeometry(Part.LineSegment(Vector(-34, -45, 0), Vector(-44, -45, 0)), False)
sketch5.addConstraint(Sketcher.Constraint("Coincident", 0, 2, 1, 1))
sketch5.addConstraint(Sketcher.Constraint("Coincident", 1, 2, 2, 1))
sketch5.addConstraint(Sketcher.Constraint("Coincident", 2, 2, 3, 1))
sketch5.addConstraint(Sketcher.Constraint("Coincident", 3, 2, 0, 1))
sketch5.addConstraint(Sketcher.Constraint("Coincident", 4, 2, 5, 1))
sketch5.addConstraint(Sketcher.Constraint("Coincident", 5, 2, 6, 1))
sketch5.addConstraint(Sketcher.Constraint("Coincident", 6, 2, 7, 1))
sketch5.addConstraint(Sketcher.Constraint("Coincident", 7, 2, 4, 1))
sketch5.addConstraint(Sketcher.Constraint("Vertical", 0))
sketch5.addConstraint(Sketcher.Constraint("Horizontal", 1))
sketch5.addConstraint(Sketcher.Constraint("Vertical", 2))
sketch5.addConstraint(Sketcher.Constraint("Horizontal", 3))
sketch5.addConstraint(Sketcher.Constraint("Vertical", 4))
sketch5.addConstraint(Sketcher.Constraint("Horizontal", 5))
sketch5.addConstraint(Sketcher.Constraint("Vertical", 6))
sketch5.addConstraint(Sketcher.Constraint("Horizontal", 7))
sketch5.addConstraint(Sketcher.Constraint("Symmetric", 3, 2, 4, 2, -1))
sketch5.addConstraint(Sketcher.Constraint("Symmetric", 1, 2, 6, 2, -1))
sketch5.addConstraint(Sketcher.Constraint("DistanceX", 1, 1, 1, 2, Q("10 mm")))
sketch5.addConstraint(Sketcher.Constraint("DistanceX", 0, 2, -1, 1, Q("44 mm")))
sketch5.addConstraint(Sketcher.Constraint("DistanceY", -1, 1, 2, 2, Q("55 mm")))
sketch5.addConstraint(Sketcher.Constraint("DistanceY", 0, 2, 0, 1, Q("9.75 mm")))
pocket4 = body.newObject("PartDesign::Pocket", "Pocket003")
pocket4.Profile = sketch5
pocket4.Length = 10
doc.recompute()

fillet2 = body.newObject("PartDesign::Fillet", "Fillet001")
fillet2.Base = (pocket4, edges_at(pocket4, [
    (-34, 55, 1),
    (-34, 45.25, 1),
    (-34, -45.25, 1),
    (-34, -55, 1),
]))
fillet2.Radius = 1

doc.recompute()
